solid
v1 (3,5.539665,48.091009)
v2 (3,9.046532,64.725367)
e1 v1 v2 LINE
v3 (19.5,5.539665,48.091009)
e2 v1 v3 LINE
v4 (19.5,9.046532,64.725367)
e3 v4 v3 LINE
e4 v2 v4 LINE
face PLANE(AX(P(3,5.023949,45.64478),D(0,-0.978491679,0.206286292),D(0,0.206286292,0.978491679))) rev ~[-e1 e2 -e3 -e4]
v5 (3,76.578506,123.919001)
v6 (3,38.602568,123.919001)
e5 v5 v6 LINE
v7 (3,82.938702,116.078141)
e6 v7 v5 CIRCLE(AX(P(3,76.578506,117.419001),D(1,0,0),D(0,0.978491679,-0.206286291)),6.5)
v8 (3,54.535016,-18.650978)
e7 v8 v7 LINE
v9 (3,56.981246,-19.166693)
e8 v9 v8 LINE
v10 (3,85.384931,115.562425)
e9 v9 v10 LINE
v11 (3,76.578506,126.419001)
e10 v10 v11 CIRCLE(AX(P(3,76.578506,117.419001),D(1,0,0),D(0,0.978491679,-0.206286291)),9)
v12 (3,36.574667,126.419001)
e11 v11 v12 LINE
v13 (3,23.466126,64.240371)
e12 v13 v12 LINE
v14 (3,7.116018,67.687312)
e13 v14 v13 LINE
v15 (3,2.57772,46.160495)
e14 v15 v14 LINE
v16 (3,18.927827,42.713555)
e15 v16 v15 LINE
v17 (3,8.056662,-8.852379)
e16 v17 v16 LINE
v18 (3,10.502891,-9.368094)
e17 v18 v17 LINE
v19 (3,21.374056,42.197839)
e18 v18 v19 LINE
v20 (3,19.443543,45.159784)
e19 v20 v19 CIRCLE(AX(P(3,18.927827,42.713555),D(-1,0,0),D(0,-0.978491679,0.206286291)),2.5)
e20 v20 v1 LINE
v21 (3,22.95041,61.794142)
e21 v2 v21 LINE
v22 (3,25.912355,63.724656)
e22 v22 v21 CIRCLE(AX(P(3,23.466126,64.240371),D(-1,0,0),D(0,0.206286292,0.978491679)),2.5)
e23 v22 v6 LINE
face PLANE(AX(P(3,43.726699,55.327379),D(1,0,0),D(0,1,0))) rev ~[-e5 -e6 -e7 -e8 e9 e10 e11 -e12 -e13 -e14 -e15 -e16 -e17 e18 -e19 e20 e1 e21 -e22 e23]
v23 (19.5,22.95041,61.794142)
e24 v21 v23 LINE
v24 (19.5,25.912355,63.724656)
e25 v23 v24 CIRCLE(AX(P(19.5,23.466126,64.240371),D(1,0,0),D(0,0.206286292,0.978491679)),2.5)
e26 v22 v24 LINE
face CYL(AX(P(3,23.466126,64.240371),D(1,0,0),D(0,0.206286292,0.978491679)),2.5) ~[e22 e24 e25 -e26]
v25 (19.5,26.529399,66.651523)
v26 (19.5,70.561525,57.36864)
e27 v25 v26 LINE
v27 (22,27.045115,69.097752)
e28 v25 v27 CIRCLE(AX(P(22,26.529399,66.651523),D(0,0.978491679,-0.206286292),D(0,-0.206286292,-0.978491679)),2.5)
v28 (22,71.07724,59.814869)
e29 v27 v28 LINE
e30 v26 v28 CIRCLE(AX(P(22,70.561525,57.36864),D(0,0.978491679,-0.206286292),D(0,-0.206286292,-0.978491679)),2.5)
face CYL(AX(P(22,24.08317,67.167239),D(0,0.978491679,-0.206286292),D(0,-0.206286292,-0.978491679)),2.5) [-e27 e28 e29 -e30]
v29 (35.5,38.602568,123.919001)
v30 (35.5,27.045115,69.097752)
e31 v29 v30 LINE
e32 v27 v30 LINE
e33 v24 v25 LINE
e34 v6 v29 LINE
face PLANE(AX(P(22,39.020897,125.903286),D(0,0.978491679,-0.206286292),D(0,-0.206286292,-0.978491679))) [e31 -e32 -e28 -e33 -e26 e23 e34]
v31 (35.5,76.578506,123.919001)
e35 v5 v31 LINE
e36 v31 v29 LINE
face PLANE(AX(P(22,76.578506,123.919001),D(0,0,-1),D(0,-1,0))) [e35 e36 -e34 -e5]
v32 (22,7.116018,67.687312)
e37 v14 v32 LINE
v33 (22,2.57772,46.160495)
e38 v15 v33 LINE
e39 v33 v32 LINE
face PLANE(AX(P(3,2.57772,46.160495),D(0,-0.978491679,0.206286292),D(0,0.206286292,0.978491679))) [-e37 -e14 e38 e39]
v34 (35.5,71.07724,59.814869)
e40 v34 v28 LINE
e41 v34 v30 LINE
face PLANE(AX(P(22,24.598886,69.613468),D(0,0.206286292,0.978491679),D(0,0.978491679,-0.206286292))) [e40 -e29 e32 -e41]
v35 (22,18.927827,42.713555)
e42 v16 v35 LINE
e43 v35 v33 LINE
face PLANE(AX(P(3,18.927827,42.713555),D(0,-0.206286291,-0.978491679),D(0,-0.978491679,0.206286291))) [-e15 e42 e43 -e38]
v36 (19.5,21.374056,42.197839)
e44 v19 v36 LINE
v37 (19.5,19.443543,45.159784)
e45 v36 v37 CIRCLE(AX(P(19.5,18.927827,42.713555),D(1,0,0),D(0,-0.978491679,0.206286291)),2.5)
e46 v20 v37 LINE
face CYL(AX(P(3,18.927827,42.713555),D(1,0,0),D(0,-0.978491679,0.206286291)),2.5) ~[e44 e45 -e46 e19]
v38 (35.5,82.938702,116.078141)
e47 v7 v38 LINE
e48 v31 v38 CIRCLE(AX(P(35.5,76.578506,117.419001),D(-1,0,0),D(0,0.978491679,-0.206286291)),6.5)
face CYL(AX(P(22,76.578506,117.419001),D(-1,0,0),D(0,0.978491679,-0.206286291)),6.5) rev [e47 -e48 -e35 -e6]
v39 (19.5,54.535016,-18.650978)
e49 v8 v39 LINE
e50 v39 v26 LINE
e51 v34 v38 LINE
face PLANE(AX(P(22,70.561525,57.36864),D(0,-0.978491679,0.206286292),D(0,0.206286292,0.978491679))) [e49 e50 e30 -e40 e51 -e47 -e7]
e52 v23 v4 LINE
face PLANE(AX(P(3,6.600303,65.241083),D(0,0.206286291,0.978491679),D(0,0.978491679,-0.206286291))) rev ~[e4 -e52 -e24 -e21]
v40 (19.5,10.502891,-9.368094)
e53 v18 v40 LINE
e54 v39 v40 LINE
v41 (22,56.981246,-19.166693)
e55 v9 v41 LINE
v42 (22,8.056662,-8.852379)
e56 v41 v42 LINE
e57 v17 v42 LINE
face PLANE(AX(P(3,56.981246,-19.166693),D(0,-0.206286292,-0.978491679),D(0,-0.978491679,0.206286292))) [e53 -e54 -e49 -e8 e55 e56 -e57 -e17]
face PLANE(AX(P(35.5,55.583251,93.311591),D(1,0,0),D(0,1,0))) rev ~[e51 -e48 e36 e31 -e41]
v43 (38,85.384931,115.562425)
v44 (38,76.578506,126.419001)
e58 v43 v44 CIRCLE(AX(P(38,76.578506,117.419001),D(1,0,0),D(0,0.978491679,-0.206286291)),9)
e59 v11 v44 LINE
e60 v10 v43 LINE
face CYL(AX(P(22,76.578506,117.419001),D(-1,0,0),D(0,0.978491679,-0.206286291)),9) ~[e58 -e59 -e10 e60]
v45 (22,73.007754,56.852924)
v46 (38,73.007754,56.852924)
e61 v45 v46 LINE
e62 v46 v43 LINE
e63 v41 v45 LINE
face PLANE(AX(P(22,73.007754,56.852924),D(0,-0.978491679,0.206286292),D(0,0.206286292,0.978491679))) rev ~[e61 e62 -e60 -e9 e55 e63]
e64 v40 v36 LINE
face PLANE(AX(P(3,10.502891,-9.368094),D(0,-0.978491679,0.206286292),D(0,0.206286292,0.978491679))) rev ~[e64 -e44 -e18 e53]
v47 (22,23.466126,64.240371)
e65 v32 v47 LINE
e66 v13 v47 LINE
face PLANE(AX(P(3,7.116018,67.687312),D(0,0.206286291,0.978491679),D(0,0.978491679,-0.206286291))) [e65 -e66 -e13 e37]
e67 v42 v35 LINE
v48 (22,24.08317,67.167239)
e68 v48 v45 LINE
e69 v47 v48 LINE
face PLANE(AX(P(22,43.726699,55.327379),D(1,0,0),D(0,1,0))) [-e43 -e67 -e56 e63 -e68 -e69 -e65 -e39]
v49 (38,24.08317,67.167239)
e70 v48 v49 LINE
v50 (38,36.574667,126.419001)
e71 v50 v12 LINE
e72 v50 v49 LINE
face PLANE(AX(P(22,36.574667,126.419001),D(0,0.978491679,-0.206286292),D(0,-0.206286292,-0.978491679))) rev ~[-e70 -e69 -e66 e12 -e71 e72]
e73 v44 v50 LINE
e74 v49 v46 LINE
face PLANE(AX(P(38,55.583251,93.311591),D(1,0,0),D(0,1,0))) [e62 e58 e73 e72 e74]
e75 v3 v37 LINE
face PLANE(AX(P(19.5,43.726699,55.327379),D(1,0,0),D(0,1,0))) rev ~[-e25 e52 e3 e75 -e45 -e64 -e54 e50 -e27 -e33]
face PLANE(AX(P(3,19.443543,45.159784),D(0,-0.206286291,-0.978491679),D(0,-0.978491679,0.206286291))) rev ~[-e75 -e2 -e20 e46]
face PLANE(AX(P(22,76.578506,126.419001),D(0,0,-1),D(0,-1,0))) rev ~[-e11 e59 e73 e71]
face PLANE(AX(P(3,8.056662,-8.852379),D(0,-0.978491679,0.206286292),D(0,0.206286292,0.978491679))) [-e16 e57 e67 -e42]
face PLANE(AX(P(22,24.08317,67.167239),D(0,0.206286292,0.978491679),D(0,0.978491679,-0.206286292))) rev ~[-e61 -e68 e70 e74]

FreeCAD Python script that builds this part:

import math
import FreeCAD as App
import Part
import Sketcher
from FreeCAD import Vector
Q = App.Units.Quantity


def faces_at(feature, points):
    """Names of the faces that lie closest to the given points."""
    faces = feature.Shape.Faces
    near = lambda p: min(range(len(faces)), key=lambda i: faces[i].distToShape(Part.Vertex(*p))[0])
    return sorted({f"Face{near(p) + 1}" for p in points})

doc = App.newDocument("Part")
params = doc.addObject("Spreadsheet::Sheet", "Params")
for row, (alias, value) in enumerate([
    ("sketch1_radius", "9 mm"),
    ("sketch1_length", "22 mm"),
    ("sketch1_length2", "50 mm"),
    ("pad1_length", "19 mm"),
    ("sketch2_radius", "9 mm"),
    ("sketch2_length", "60 mm"),
    ("sketch2_length2", "50 mm"),
    ("pad2_length", "16 mm"),
    ("thickness_wall", "2.5 mm"),
], start=1):
    params.set(f"A{row}", alias)
    params.set(f"B{row}", "=" + value)
    params.setAlias(f"B{row}", alias)

body = doc.addObject("PartDesign::Body", "Body")

sketch1 = body.newObject("Sketcher::SketchObject", "Sketch")
sketch1.AttachmentSupport = (doc.getObject("YZ_Plane"), [""])
sketch1.MapMode = "FlatFace"
sketch1.addGeometry([
    Part.LineSegment(Vector(56.981246, -19.166693, 0), Vector(85.384931, 115.562425, 0)),
    Part.ArcOfCircle(Part.Circle(Vector(76.578506, 117.419001, 0), Vector(0, 0, 1), 9), math.radians(-11.904808), math.radians(90)),
    Part.LineSegment(Vector(76.578506, 126.419001, 0), Vector(36.574667, 126.419001, 0)),
    Part.LineSegment(Vector(36.574667, 126.419001, 0), Vector(23.466126, 64.240371, 0)),
    Part.LineSegment(Vector(23.466126, 64.240371, 0), Vector(7.116018, 67.687312, 0)),
    Part.LineSegment(Vector(7.116018, 67.687312, 0), Vector(2.57772, 46.160495, 0)),
    Part.LineSegment(Vector(2.57772, 46.160495, 0), Vector(18.927827, 42.713555, 0)),
    Part.LineSegment(Vector(18.927827, 42.713555, 0), Vector(8.056662, -8.852379, 0)),
    Part.LineSegment(Vector(8.056662, -8.852379, 0), Vector(56.981246, -19.166693, 0)),
], False)
sketch1.addConstraint([
    Sketcher.Constraint("Tangent", 0, 2, 1, 1),
    Sketcher.Constraint("Tangent", 1, 2, 2, 1),
    Sketcher.Constraint("Coincident", 2, 2, 3, 1),
    Sketcher.Constraint("Coincident", 3, 2, 4, 1),
    Sketcher.Constraint("Coincident", 4, 2, 5, 1),
    Sketcher.Constraint("Coincident", 5, 2, 6, 1),
    Sketcher.Constraint("Coincident", 6, 2, 7, 1),
    Sketcher.Constraint("Coincident", 7, 2, 8, 1),
    Sketcher.Constraint("Coincident", 8, 2, 0, 1),
    Sketcher.Constraint("Horizontal", 2),
    Sketcher.Constraint("Parallel", 0, 3),
    Sketcher.Constraint("Perpendicular", 3, 4),
    Sketcher.Constraint("Perpendicular", 4, 5),
    Sketcher.Constraint("Perpendicular", 5, 6),
    Sketcher.Constraint("Perpendicular", 6, 7),
    Sketcher.Constraint("Perpendicular", 7, 8),
    Sketcher.Constraint("Equal", 4, 6),
    Sketcher.Constraint("Radius", 1, Q("9 mm")),
    Sketcher.Constraint("Distance", 5, Q("22 mm")),
    Sketcher.Constraint("Distance", 8, Q("50 mm")),
    Sketcher.Constraint("DistanceY", -1, 1, 1, 3, Q("117.419001 mm")),
    Sketcher.Constraint("Distance", 4, Q("16.709501 mm")),
    Sketcher.Constraint("DistanceX", 5, 2, 4, 2, Q("4.538298 mm")),
    Sketcher.Constraint("Distance", 0, Q("137.690612 mm")),
    Sketcher.Constraint("Distance", 7, Q("52.699409 mm")),
    Sketcher.Constraint("DistanceX", -1, 1, 0, 2, Q("85.384931 mm")),
])
sketch1.setExpression("Constraints[17]", "Params.sketch1_radius")
sketch1.setExpression("Constraints[18]", "Params.sketch1_length")
sketch1.setExpression("Constraints[19]", "Params.sketch1_length2")
pad1 = body.newObject("PartDesign::Pad", "Pad")
pad1.Profile = sketch1
pad1.setExpression("Length", "Params.pad1_length")

sketch2 = body.newObject("Sketcher::SketchObject", "Sketch001")
sketch2.AttachmentSupport = (doc.getObject("YZ_Plane"), [""])
sketch2.MapMode = "FlatFace"
sketch2.AttachmentOffset = App.Placement(Vector(0, 0, 19), App.Rotation())
sketch2.addGeometry([
    Part.LineSegment(Vector(73.007754, 56.852924, 0), Vector(85.384931, 115.562425, 0)),
    Part.ArcOfCircle(Part.Circle(Vector(76.578506, 117.419001, 0), Vector(0, 0, 1), 9), math.radians(-11.904808), math.radians(90)),
    Part.LineSegment(Vector(76.578506, 126.419001, 0), Vector(36.574667, 126.419001, 0)),
    Part.LineSegment(Vector(36.574667, 126.419001, 0), Vector(24.08317, 67.167239, 0)),
    Part.LineSegment(Vector(24.08317, 67.167239, 0), Vector(73.007754, 56.852924, 0)),
], False)
sketch2.addConstraint([
    Sketcher.Constraint("Tangent", 0, 2, 1, 1),
    Sketcher.Constraint("Tangent", 1, 2, 2, 1),
    Sketcher.Constraint("Coincident", 2, 2, 3, 1),
    Sketcher.Constraint("Coincident", 3, 2, 4, 1),
    Sketcher.Constraint("Coincident", 4, 2, 0, 1),
    Sketcher.Constraint("Horizontal", 2),
    Sketcher.Constraint("Parallel", 0, 3),
    Sketcher.Constraint("Perpendicular", 3, 4),
    Sketcher.Constraint("Radius", 1, Q("9 mm")),
    Sketcher.Constraint("Distance", 0, Q("60 mm")),
    Sketcher.Constraint("Distance", 4, Q("50 mm")),
    Sketcher.Constraint("DistanceY", -1, 1, 1, 3, Q("117.419001 mm")),
    Sketcher.Constraint("DistanceX", 2, 2, 2, 1, Q("40.003839 mm")),
    Sketcher.Constraint("DistanceX", -1, 1, 0, 2, Q("85.384931 mm")),
])
sketch2.setExpression("Constraints[8]", "Params.sketch2_radius")
sketch2.setExpression("Constraints[9]", "Params.sketch2_length")
sketch2.setExpression("Constraints[10]", "Params.sketch2_length2")
pad2 = body.newObject("PartDesign::Pad", "Pad001")
pad2.Profile = sketch2
pad2.setExpression("Length", "Params.pad2_length")
doc.recompute()

thickness = body.newObject("PartDesign::Thickness", "Thickness")
thickness.Base = (pad2, faces_at(pad2, [(0, 44.078, 53.626), (9.5, 32.519, -14.01)]))
thickness.setExpression("Value", "Params.thickness_wall")
thickness.Reversed = True
thickness.Join = "Arc"
body2 = doc.addObject("PartDesign::Body", "Body001")
doc.recompute()

body.Placement = App.Placement(Vector(3, 0, 0), App.Rotation(Vector(0, 0, 1), 0))
boolean = body2.newObject("PartDesign::Boolean", "Boolean")
boolean.Type = "Fuse"
boolean.addObjects([body])

doc.recompute()
